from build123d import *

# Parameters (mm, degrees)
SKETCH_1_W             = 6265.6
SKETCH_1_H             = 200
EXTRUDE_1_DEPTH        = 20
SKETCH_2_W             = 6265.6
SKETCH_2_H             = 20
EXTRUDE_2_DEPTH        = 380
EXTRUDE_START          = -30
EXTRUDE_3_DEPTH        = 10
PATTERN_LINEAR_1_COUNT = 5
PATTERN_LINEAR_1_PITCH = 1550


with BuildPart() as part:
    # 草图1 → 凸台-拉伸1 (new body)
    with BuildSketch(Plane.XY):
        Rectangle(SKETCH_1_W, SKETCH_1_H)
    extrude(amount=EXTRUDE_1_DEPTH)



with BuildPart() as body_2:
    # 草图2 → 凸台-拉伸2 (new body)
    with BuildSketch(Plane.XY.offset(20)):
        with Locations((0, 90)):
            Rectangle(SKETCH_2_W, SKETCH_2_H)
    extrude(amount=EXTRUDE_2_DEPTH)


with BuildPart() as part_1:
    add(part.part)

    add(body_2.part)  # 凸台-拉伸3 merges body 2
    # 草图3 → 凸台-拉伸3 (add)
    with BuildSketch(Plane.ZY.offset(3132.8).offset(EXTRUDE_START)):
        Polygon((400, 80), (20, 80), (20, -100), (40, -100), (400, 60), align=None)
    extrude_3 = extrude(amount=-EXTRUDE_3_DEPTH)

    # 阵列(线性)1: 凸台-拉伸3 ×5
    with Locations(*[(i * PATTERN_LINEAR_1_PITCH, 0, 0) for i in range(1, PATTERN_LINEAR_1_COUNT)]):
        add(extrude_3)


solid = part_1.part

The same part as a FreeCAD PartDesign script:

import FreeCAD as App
import Part
import Sketcher
from FreeCAD import Vector
Q = App.Units.Quantity


def add_polygon(sketch, points):
    """Adds a closed chain of lines whose ends are joined by coincident constraints."""
    first, n = sketch.GeometryCount, len(points)
    for a, b in zip(points, points[1:] + points[:1]):
        sketch.addGeometry(Part.LineSegment(App.Vector(*a, 0), App.Vector(*b, 0)), False)
    for i in range(n):
        sketch.addConstraint(Sketcher.Constraint("Coincident", first + i, 2, first + (i + 1) % n, 1))

doc = App.newDocument("Part")
body = doc.addObject("PartDesign::Body", "Body")

# Sketch on XY plane
sketch1 = doc.addObject("Sketcher::SketchObject", "Sketch")
body.addObject(sketch1)
sketch1.AttachmentSupport = (doc.XY_Plane, [""])
sketch1.MapMode = "FlatFace"
add_polygon(sketch1, [(-3132.8, 100), (-3132.8, -100), (3132.8, -100), (3132.8, 100)])  # lines 0-3
sketch1.addConstraint(Sketcher.Constraint("Vertical", 0))
sketch1.addConstraint(Sketcher.Constraint("Horizontal", 1))
sketch1.addConstraint(Sketcher.Constraint("Vertical", 2))
sketch1.addConstraint(Sketcher.Constraint("Horizontal", 3))
sketch1.addConstraint(Sketcher.Constraint("Symmetric", 0, 2, 2, 2, -1, 1))
sketch1.addConstraint(Sketcher.Constraint("DistanceY", 0, 2, 0, 1, Q("200 mm")))
sketch1.addConstraint(Sketcher.Constraint("DistanceX", 1, 1, 1, 2, Q("6265.6 mm")))
pad1 = doc.addObject("PartDesign::Pad", "Pad")
body.addObject(pad1)
pad1.Profile = sketch1
pad1.Length = 20
body2 = doc.addObject("PartDesign::Body", "Body001")

# Sketch on XY plane
sketch2 = doc.addObject("Sketcher::SketchObject", "Sketch001")
body2.addObject(sketch2)
sketch2.AttachmentSupport = (doc.getObject("XY_Plane001"), [""])
sketch2.MapMode = "FlatFace"
sketch2.AttachmentOffset = App.Placement(Vector(0, 0, 20), App.Rotation())
add_polygon(sketch2, [(-3132.8, 100), (-3132.8, 80), (3132.8, 80), (3132.8, 100)])  # lines 0-3
sketch2.addConstraint(Sketcher.Constraint("Vertical", 0))
sketch2.addConstraint(Sketcher.Constraint("Horizontal", 1))
sketch2.addConstraint(Sketcher.Constraint("Vertical", 2))
sketch2.addConstraint(Sketcher.Constraint("Horizontal", 3))
sketch2.addConstraint(Sketcher.Constraint("DistanceY", 0, 2, 0, 1, Q("20 mm")))
sketch2.addConstraint(Sketcher.Constraint("DistanceX", 1, 1, 1, 2, Q("6265.6 mm")))
sketch2.addConstraint(Sketcher.Constraint("DistanceY", -1, 1, 0, 2, Q("80 mm")))
sketch2.addConstraint(Sketcher.Constraint("DistanceX", 0, 2, -1, 1, Q("3132.8 mm")))
pad2 = doc.addObject("PartDesign::Pad", "Pad001")
body2.addObject(pad2)
pad2.Profile = sketch2
pad2.Length = 380
doc.recompute()

boolean = doc.addObject("PartDesign::Boolean", "Boolean")
body.addObject(boolean)
boolean.Type = "Fuse"
boolean.addObjects([body2])

# Sketch on YZ plane
sketch3 = doc.addObject("Sketcher::SketchObject", "Sketch002")
body.addObject(sketch3)
sketch3.AttachmentSupport = (doc.YZ_Plane, [""])
sketch3.MapMode = "FlatFace"
sketch3.AttachmentOffset = App.Placement(Vector(0, 0, -3102.8), App.Rotation())
add_polygon(sketch3, [(80, 400), (80, 20), (-100, 20), (-100, 40), (60, 400)])  # lines 0-4
sketch3.addConstraint(Sketcher.Constraint("Vertical", 0))
sketch3.addConstraint(Sketcher.Constraint("Horizontal", 1))
sketch3.addConstraint(Sketcher.Constraint("Vertical", 2))
sketch3.addConstraint(Sketcher.Constraint("Horizontal", 4))
sketch3.addConstraint(Sketcher.Constraint("Equal", 4, 2))
sketch3.addConstraint(Sketcher.Constraint("DistanceX", 1, 2, 1, 1, Q("180 mm")))
sketch3.addConstraint(Sketcher.Constraint("DistanceX", 4, 1, 4, 2, Q("20 mm")))
sketch3.addConstraint(Sketcher.Constraint("DistanceY", 0, 2, 0, 1, Q("380 mm")))
sketch3.addConstraint(Sketcher.Constraint("DistanceX", -1, 1, 0, 2, Q("80 mm")))
sketch3.addConstraint(Sketcher.Constraint("DistanceY", -1, 1, 0, 2, Q("20 mm")))
pad3 = doc.addObject("PartDesign::Pad", "Pad002")
body.addObject(pad3)
pad3.Profile = sketch3
pad3.Length = 10
doc.recompute()

linearpattern = doc.addObject("PartDesign::LinearPattern", "LinearPattern")
body.addObject(linearpattern)
linearpattern.Originals = [pad3]
linearpattern.Direction = (doc.X_Axis, [""])
linearpattern.Mode = "offset"
linearpattern.Offset = 1550
linearpattern.Occurrences = 5
body.Tip = linearpattern

doc.recompute()
